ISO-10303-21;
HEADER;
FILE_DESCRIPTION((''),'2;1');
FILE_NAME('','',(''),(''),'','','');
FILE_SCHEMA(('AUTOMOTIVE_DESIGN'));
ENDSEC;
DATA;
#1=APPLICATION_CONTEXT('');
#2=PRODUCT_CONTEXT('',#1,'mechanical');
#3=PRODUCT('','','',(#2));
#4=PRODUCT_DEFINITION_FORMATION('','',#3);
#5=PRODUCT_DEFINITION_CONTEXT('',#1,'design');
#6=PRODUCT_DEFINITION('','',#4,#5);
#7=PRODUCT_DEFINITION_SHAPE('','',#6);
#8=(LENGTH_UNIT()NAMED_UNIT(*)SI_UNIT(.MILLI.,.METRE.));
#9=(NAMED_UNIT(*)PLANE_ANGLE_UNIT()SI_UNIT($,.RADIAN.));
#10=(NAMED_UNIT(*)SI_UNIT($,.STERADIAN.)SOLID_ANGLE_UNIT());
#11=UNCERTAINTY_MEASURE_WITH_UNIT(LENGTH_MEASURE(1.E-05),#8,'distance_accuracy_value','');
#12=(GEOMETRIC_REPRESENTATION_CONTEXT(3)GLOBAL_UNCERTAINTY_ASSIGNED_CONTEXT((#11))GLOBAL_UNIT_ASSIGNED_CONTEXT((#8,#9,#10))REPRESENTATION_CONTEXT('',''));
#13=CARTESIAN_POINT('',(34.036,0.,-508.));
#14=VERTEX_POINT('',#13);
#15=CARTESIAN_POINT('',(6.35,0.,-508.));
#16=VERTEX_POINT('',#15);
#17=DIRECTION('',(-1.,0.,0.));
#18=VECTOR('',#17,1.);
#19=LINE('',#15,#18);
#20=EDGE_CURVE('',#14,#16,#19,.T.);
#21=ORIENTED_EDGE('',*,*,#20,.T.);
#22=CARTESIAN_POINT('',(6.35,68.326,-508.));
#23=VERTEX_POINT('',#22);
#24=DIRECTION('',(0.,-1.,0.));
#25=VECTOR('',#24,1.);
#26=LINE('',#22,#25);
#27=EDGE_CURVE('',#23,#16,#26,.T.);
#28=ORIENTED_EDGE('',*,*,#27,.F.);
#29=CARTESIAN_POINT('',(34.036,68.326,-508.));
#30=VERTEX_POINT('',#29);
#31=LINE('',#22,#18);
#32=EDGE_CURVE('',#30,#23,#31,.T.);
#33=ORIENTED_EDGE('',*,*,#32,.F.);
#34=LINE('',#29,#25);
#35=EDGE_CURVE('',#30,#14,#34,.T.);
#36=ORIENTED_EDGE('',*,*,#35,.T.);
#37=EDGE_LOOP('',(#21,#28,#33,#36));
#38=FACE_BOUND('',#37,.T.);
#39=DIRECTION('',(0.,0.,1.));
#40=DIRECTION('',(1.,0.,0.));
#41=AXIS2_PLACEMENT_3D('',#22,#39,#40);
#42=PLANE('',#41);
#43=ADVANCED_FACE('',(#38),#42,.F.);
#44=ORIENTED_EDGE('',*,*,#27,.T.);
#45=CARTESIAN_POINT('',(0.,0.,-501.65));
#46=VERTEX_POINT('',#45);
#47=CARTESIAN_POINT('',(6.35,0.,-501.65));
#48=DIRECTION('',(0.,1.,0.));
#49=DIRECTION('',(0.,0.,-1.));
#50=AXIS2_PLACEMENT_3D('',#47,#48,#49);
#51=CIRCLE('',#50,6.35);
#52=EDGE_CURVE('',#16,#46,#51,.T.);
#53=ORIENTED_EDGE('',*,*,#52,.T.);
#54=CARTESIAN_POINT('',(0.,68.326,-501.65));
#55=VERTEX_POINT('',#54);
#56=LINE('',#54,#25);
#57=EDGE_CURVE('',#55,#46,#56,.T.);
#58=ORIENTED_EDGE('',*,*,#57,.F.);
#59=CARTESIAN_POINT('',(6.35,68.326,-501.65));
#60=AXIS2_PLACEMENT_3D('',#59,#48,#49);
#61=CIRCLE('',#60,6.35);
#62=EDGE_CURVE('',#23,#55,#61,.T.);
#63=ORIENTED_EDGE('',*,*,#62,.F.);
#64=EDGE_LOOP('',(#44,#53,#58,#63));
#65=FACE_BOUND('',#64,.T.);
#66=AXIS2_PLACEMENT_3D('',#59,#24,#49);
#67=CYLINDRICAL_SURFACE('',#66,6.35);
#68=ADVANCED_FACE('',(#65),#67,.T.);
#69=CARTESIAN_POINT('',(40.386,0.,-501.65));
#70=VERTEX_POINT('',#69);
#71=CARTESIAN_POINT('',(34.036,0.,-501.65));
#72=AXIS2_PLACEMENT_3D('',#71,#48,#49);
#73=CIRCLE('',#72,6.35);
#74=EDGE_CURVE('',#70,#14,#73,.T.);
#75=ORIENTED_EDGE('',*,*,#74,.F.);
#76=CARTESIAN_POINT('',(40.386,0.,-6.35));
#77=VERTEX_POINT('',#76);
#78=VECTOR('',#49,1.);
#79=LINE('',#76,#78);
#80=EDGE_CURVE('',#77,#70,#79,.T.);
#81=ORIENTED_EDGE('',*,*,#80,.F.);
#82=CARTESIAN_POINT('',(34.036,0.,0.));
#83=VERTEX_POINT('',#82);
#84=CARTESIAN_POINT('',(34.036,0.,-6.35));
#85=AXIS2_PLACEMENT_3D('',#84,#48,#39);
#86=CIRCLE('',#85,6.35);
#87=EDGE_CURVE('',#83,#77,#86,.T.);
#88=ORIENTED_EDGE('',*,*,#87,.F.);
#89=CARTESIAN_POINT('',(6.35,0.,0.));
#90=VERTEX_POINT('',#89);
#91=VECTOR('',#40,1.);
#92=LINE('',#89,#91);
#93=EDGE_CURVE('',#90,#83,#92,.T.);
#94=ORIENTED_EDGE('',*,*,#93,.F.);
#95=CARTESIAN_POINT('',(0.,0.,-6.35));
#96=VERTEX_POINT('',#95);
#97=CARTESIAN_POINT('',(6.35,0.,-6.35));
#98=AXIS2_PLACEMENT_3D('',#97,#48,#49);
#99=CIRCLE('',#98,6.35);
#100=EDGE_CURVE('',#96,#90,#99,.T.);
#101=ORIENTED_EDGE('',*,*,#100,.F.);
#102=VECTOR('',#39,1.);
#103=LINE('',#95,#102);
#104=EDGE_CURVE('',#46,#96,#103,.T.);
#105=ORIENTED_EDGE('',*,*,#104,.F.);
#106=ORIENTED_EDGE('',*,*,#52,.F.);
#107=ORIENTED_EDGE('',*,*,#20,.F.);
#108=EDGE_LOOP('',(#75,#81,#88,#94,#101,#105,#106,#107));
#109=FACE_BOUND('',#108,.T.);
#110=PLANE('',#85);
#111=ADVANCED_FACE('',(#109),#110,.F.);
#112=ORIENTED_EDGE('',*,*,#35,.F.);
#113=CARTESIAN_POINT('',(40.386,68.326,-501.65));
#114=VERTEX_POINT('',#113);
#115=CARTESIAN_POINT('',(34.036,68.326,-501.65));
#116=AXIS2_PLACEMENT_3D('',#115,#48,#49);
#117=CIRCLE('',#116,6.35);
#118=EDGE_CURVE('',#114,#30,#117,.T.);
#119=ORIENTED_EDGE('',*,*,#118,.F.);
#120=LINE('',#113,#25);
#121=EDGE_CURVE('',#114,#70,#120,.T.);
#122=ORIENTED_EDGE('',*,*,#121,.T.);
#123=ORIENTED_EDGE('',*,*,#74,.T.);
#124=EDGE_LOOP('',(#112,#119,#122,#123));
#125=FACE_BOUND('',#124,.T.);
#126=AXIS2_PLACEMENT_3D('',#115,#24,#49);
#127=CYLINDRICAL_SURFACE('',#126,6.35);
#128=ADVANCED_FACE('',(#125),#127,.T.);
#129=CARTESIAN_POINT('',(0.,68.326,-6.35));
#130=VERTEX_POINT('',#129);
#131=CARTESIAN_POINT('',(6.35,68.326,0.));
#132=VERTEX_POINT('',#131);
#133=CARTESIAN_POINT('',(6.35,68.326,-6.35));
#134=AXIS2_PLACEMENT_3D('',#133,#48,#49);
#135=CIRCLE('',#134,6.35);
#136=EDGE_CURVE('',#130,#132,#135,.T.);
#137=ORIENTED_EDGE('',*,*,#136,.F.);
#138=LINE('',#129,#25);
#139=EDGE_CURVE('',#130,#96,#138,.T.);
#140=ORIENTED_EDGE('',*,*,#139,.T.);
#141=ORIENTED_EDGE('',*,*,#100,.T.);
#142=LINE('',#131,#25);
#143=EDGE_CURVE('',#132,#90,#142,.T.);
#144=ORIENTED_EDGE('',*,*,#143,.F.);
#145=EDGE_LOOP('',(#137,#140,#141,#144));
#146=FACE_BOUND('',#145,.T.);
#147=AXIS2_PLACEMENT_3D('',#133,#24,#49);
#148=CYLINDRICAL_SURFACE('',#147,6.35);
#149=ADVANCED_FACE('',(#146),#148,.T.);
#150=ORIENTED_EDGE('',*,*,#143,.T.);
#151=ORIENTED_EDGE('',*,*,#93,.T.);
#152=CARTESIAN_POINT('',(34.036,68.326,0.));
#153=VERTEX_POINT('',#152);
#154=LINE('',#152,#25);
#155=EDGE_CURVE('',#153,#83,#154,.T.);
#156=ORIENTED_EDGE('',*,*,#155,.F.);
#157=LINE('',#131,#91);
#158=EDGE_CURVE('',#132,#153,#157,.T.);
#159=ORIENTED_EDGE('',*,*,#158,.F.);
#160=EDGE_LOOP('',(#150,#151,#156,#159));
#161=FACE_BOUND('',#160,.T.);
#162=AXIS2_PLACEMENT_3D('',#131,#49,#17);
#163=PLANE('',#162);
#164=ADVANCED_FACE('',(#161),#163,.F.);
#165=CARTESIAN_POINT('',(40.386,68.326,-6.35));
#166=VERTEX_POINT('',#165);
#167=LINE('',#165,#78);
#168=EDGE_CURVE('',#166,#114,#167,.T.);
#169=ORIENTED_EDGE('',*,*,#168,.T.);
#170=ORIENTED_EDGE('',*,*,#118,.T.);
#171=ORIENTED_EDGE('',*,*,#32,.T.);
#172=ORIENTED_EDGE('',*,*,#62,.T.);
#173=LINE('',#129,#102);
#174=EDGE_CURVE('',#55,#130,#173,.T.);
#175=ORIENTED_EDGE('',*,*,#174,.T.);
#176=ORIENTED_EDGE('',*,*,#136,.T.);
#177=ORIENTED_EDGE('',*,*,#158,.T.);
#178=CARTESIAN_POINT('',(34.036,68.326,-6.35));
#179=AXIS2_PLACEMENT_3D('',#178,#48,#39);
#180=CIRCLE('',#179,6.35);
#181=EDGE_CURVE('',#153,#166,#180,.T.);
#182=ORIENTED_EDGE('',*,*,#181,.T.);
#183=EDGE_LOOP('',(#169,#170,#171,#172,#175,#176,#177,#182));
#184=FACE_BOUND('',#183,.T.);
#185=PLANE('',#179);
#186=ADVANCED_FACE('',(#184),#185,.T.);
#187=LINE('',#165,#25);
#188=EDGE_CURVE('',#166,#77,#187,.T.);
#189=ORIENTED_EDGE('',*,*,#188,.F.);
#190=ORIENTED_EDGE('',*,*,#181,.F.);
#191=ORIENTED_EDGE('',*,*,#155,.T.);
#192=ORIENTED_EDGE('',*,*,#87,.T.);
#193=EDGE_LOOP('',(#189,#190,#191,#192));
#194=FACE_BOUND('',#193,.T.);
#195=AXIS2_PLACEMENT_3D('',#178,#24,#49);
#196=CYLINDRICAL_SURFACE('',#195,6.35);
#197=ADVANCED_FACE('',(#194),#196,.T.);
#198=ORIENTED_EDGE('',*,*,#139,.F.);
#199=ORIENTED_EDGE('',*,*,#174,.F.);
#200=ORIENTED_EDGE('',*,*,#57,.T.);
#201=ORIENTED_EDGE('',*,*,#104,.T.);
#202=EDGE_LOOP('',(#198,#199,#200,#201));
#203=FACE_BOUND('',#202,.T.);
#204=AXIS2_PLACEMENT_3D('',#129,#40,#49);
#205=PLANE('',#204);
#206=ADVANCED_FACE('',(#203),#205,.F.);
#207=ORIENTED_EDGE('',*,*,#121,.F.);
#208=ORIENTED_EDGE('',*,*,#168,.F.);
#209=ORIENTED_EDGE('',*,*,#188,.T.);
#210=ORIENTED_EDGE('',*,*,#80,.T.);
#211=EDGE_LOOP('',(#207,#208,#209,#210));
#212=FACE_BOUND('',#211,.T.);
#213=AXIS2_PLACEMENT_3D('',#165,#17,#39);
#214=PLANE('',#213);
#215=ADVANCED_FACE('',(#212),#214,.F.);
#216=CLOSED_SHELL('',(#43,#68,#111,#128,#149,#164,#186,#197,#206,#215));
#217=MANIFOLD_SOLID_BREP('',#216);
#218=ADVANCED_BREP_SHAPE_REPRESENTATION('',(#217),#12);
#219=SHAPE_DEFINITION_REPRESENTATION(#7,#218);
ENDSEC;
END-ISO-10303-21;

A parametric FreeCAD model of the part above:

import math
import FreeCAD as App
import Part
import Sketcher

V = App.Vector
Q = App.Units.Quantity

doc = App.newDocument("Part")
body = doc.addObject("PartDesign::Body", "Body")

sketch1 = body.newObject("Sketcher::SketchObject", "Sketch")
sketch1.AttachmentSupport = (doc.getObject("XZ_Plane"), [""])
sketch1.MapMode = "FlatFace"
sketch1.addGeometry(Part.LineSegment(V(6.35, 0, 0), V(34.036, 0, 0)), False)
sketch1.addGeometry(Part.ArcOfCircle(Part.Circle(V(34.036, -6.35, 0), V(0, 0, 1), 6.35), math.radians(0), math.radians(90)), False)
sketch1.addGeometry(Part.LineSegment(V(40.386, -6.35, 0), V(40.386, -501.65, 0)), False)
sketch1.addGeometry(Part.ArcOfCircle(Part.Circle(V(34.036, -501.65, 0), V(0, 0, 1), 6.35), math.radians(-90), math.radians(0)), False)
sketch1.addGeometry(Part.LineSegment(V(34.036, -508, 0), V(6.35, -508, 0)), False)
sketch1.addGeometry(Part.ArcOfCircle(Part.Circle(V(6.35, -501.65, 0), V(0, 0, 1), 6.35), math.radians(180), math.radians(270)), False)
sketch1.addGeometry(Part.LineSegment(V(0, -501.65, 0), V(0, -6.35, 0)), False)
sketch1.addGeometry(Part.ArcOfCircle(Part.Circle(V(6.35, -6.35, 0), V(0, 0, 1), 6.35), math.radians(90), math.radians(180)), False)
sketch1.addConstraint(Sketcher.Constraint("Tangent", 0, 2, 1, 2))
sketch1.addConstraint(Sketcher.Constraint("Tangent", 1, 1, 2, 1))
sketch1.addConstraint(Sketcher.Constraint("Tangent", 2, 2, 3, 2))
sketch1.addConstraint(Sketcher.Constraint("Tangent", 3, 1, 4, 1))
sketch1.addConstraint(Sketcher.Constraint("Tangent", 4, 2, 5, 2))
sketch1.addConstraint(Sketcher.Constraint("Tangent", 5, 1, 6, 1))
sketch1.addConstraint(Sketcher.Constraint("Tangent", 6, 2, 7, 2))
sketch1.addConstraint(Sketcher.Constraint("Tangent", 7, 1, 0, 1))
sketch1.addConstraint(Sketcher.Constraint("Horizontal", 0))
sketch1.addConstraint(Sketcher.Constraint("Vertical", 2))
sketch1.addConstraint(Sketcher.Constraint("Horizontal", 4))
sketch1.addConstraint(Sketcher.Constraint("Vertical", 6))
sketch1.addConstraint(Sketcher.Constraint("Equal", 1, 3))
sketch1.addConstraint(Sketcher.Constraint("Equal", 3, 5))
sketch1.addConstraint(Sketcher.Constraint("Equal", 5, 7))
sketch1.addConstraint(Sketcher.Constraint("PointOnObject", 0, 2, -1))
sketch1.addConstraint(Sketcher.Constraint("PointOnObject", 5, 1, -2))
sketch1.addConstraint(Sketcher.Constraint("Radius", 1, Q("0.25 in")))
sketch1.addConstraint(Sketcher.Constraint("DistanceY", 2, 2, 2, 1, Q("19.5 in")))
sketch1.addConstraint(Sketcher.Constraint("DistanceX", 0, 1, 0, 2, Q("1.09 in")))
pad1 = body.newObject("PartDesign::Pad", "Pad")
pad1.Profile = sketch1
pad1.Length = Q("2.69 in")
pad1.Reversed = True

doc.recompute()
